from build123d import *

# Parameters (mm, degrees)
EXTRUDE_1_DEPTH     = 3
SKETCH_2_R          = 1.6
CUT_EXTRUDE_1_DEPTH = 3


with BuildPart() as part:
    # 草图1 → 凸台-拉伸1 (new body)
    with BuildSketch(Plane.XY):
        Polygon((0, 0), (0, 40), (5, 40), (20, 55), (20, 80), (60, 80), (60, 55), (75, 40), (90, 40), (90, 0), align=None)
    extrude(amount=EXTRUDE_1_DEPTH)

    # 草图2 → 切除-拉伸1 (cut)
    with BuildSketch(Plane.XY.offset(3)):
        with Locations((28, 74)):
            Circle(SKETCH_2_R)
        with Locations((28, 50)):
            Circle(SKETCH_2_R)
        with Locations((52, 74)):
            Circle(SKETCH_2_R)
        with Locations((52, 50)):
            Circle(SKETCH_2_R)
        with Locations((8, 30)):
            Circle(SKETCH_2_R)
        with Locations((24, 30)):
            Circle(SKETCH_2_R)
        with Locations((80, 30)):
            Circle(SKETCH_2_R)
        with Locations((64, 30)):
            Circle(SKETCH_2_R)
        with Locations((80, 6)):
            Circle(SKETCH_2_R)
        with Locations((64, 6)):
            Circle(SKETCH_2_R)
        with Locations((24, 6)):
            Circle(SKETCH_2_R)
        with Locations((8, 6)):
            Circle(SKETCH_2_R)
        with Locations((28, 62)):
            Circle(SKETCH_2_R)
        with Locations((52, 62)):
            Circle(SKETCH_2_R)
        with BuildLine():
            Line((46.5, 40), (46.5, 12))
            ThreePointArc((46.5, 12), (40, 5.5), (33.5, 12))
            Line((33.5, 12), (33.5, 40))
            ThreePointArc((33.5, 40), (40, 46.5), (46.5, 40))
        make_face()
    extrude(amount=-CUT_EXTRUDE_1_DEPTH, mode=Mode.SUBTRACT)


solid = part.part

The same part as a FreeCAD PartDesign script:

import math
import FreeCAD as App
import Part
import Sketcher
Q = App.Units.Quantity

doc = App.newDocument("Part")
body = doc.addObject("PartDesign::Body", "Body")

sketch1 = body.newObject("Sketcher::SketchObject", "Sketch")
sketch1.AttachmentSupport = (doc.getObject("XY_Plane"), [""])
sketch1.MapMode = "FlatFace"
sketch1.addGeometry([
    Part.LineSegment(App.Vector(0, 40, 0), App.Vector(0, 0, 0)),
    Part.LineSegment(App.Vector(0, 0, 0), App.Vector(90, 0, 0)),
    Part.LineSegment(App.Vector(90, 0, 0), App.Vector(90, 40, 0)),
    Part.LineSegment(App.Vector(90, 40, 0), App.Vector(75, 40, 0)),
    Part.LineSegment(App.Vector(75, 40, 0), App.Vector(60, 55, 0)),
    Part.LineSegment(App.Vector(60, 55, 0), App.Vector(60, 80, 0)),
    Part.LineSegment(App.Vector(60, 80, 0), App.Vector(20, 80, 0)),
    Part.LineSegment(App.Vector(20, 80, 0), App.Vector(20, 55, 0)),
    Part.LineSegment(App.Vector(20, 55, 0), App.Vector(5, 40, 0)),
    Part.LineSegment(App.Vector(5, 40, 0), App.Vector(0, 40, 0)),
], False)
sketch1.addConstraint([
    Sketcher.Constraint("Coincident", 0, 2, 1, 1),
    Sketcher.Constraint("Coincident", 1, 2, 2, 1),
    Sketcher.Constraint("Coincident", 2, 2, 3, 1),
    Sketcher.Constraint("Coincident", 3, 2, 4, 1),
    Sketcher.Constraint("Coincident", 4, 2, 5, 1),
    Sketcher.Constraint("Coincident", 5, 2, 6, 1),
    Sketcher.Constraint("Coincident", 6, 2, 7, 1),
    Sketcher.Constraint("Coincident", 7, 2, 8, 1),
    Sketcher.Constraint("Coincident", 8, 2, 9, 1),
    Sketcher.Constraint("Coincident", 9, 2, 0, 1),
    Sketcher.Constraint("Vertical", 0),
    Sketcher.Constraint("Horizontal", 1),
    Sketcher.Constraint("Vertical", 2),
    Sketcher.Constraint("Horizontal", 3),
    Sketcher.Constraint("Vertical", 5),
    Sketcher.Constraint("Horizontal", 6),
    Sketcher.Constraint("Vertical", 7),
    Sketcher.Constraint("Horizontal", 9),
    Sketcher.Constraint("Coincident", 0, 2, -1, 1),
    Sketcher.Constraint("Perpendicular", 4, 8),
    Sketcher.Constraint("Horizontal", 4, 2, 7, 2),
    Sketcher.Constraint("Horizontal", 3, 2, 8, 2),
    Sketcher.Constraint("Equal", 6, 0),
    Sketcher.Constraint("Equal", 4, 8),
    Sketcher.Constraint("DistanceX", 1, 1, 1, 2, Q("90 mm")),
    Sketcher.Constraint("DistanceX", 3, 2, 3, 1, Q("15 mm")),
    Sketcher.Constraint("DistanceX", 6, 2, 6, 1, Q("40 mm")),
    Sketcher.Constraint("DistanceX", 9, 2, 9, 1, Q("5 mm")),
    Sketcher.Constraint("DistanceY", 5, 1, 5, 2, Q("25 mm")),
])
pad1 = body.newObject("PartDesign::Pad", "Pad")
pad1.Profile = sketch1
pad1.Length = 3

sketch2 = body.newObject("Sketcher::SketchObject", "Sketch001")
sketch2.AttachmentSupport = (doc.getObject("XY_Plane"), [""])
sketch2.MapMode = "FlatFace"
sketch2.AttachmentOffset = App.Placement(App.Vector(0, 0, 3), App.Rotation())
sketch2.addGeometry([
    Part.Circle(App.Vector(28, 74, 0), App.Vector(0, 0, 1), 1.6),
    Part.Circle(App.Vector(28, 50, 0), App.Vector(0, 0, 1), 1.6),
    Part.Circle(App.Vector(52, 74, 0), App.Vector(0, 0, 1), 1.6),
    Part.Circle(App.Vector(52, 50, 0), App.Vector(0, 0, 1), 1.6),
    Part.Circle(App.Vector(8, 30, 0), App.Vector(0, 0, 1), 1.6),
    Part.Circle(App.Vector(24, 30, 0), App.Vector(0, 0, 1), 1.6),
    Part.Circle(App.Vector(80, 30, 0), App.Vector(0, 0, 1), 1.6),
    Part.Circle(App.Vector(64, 30, 0), App.Vector(0, 0, 1), 1.6),
    Part.Circle(App.Vector(80, 6, 0), App.Vector(0, 0, 1), 1.6),
    Part.Circle(App.Vector(64, 6, 0), App.Vector(0, 0, 1), 1.6),
    Part.Circle(App.Vector(24, 6, 0), App.Vector(0, 0, 1), 1.6),
    Part.Circle(App.Vector(8, 6, 0), App.Vector(0, 0, 1), 1.6),
    Part.Circle(App.Vector(28, 62, 0), App.Vector(0, 0, 1), 1.6),
    Part.Circle(App.Vector(52, 62, 0), App.Vector(0, 0, 1), 1.6),
    Part.LineSegment(App.Vector(46.5, 12, 0), App.Vector(46.5, 40, 0)),
    Part.ArcOfCircle(Part.Circle(App.Vector(40, 40, 0), App.Vector(0, 0, 1), 6.5), math.radians(0), math.radians(180)),
    Part.LineSegment(App.Vector(33.5, 40, 0), App.Vector(33.5, 12, 0)),
    Part.ArcOfCircle(Part.Circle(App.Vector(40, 12, 0), App.Vector(0, 0, 1), 6.5), math.radians(180), math.radians(360)),
], False)
sketch2.addConstraint([
    Sketcher.Constraint("Tangent", 14, 2, 15, 1),
    Sketcher.Constraint("Tangent", 15, 2, 16, 1),
    Sketcher.Constraint("Tangent", 16, 2, 17, 1),
    Sketcher.Constraint("Tangent", 17, 2, 14, 1),
    Sketcher.Constraint("Vertical", 14),
    Sketcher.Constraint("Vertical", 16),
    Sketcher.Constraint("Equal", 0, 1),
    Sketcher.Constraint("Equal", 1, 2),
    Sketcher.Constraint("Equal", 2, 3),
    Sketcher.Constraint("Equal", 3, 4),
    Sketcher.Constraint("Equal", 4, 5),
    Sketcher.Constraint("Equal", 5, 6),
    Sketcher.Constraint("Equal", 6, 7),
    Sketcher.Constraint("Equal", 7, 8),
    Sketcher.Constraint("Equal", 8, 9),
    Sketcher.Constraint("Equal", 9, 10),
    Sketcher.Constraint("Equal", 10, 11),
    Sketcher.Constraint("Equal", 11, 12),
    Sketcher.Constraint("Equal", 12, 13),
    Sketcher.Constraint("Horizontal", 0, 3, 2, 3),
    Sketcher.Constraint("Horizontal", 1, 3, 3, 3),
    Sketcher.Constraint("Horizontal", 4, 3, 5, 3),
    Sketcher.Constraint("Horizontal", 5, 3, 6, 3),
    Sketcher.Constraint("Horizontal", 6, 3, 7, 3),
    Sketcher.Constraint("Horizontal", 8, 3, 9, 3),
    Sketcher.Constraint("Horizontal", 9, 3, 10, 3),
    Sketcher.Constraint("Horizontal", 10, 3, 11, 3),
    Sketcher.Constraint("Horizontal", 12, 3, 13, 3),
    Sketcher.Constraint("Vertical", 0, 3, 1, 3),
    Sketcher.Constraint("Vertical", 2, 3, 3, 3),
    Sketcher.Constraint("Vertical", 6, 3, 8, 3),
    Sketcher.Constraint("Vertical", 7, 3, 9, 3),
    Sketcher.Constraint("Vertical", 5, 3, 10, 3),
    Sketcher.Constraint("Vertical", 4, 3, 11, 3),
    Sketcher.Constraint("Vertical", 1, 3, 12, 3),
    Sketcher.Constraint("Vertical", 3, 3, 13, 3),
    Sketcher.Constraint("Diameter", 0, Q("3.2 mm")),
    Sketcher.Constraint("Radius", 15, Q("6.5 mm")),
    Sketcher.Constraint("DistanceY", 14, 1, 14, 2, Q("28 mm")),
    Sketcher.Constraint("DistanceX", -1, 1, 0, 3, Q("28 mm")),
    Sketcher.Constraint("DistanceY", -1, 1, 0, 3, Q("74 mm")),
    Sketcher.Constraint("DistanceY", -1, 1, 1, 3, Q("50 mm")),
    Sketcher.Constraint("DistanceX", -1, 1, 2, 3, Q("52 mm")),
    Sketcher.Constraint("DistanceX", -1, 1, 4, 3, Q("8 mm")),
    Sketcher.Constraint("DistanceY", -1, 1, 4, 3, Q("30 mm")),
    Sketcher.Constraint("DistanceX", -1, 1, 5, 3, Q("24 mm")),
    Sketcher.Constraint("DistanceX", -1, 1, 6, 3, Q("80 mm")),
    Sketcher.Constraint("DistanceX", -1, 1, 7, 3, Q("64 mm")),
    Sketcher.Constraint("DistanceY", -1, 1, 8, 3, Q("6 mm")),
    Sketcher.Constraint("DistanceY", -1, 1, 12, 3, Q("62 mm")),
    Sketcher.Constraint("DistanceX", -1, 1, 15, 3, Q("40 mm")),
    Sketcher.Constraint("DistanceY", -1, 1, 15, 3, Q("40 mm")),
])
pocket1 = body.newObject("PartDesign::Pocket", "Pocket")
pocket1.Profile = sketch2
pocket1.Length = 3

doc.recompute()
